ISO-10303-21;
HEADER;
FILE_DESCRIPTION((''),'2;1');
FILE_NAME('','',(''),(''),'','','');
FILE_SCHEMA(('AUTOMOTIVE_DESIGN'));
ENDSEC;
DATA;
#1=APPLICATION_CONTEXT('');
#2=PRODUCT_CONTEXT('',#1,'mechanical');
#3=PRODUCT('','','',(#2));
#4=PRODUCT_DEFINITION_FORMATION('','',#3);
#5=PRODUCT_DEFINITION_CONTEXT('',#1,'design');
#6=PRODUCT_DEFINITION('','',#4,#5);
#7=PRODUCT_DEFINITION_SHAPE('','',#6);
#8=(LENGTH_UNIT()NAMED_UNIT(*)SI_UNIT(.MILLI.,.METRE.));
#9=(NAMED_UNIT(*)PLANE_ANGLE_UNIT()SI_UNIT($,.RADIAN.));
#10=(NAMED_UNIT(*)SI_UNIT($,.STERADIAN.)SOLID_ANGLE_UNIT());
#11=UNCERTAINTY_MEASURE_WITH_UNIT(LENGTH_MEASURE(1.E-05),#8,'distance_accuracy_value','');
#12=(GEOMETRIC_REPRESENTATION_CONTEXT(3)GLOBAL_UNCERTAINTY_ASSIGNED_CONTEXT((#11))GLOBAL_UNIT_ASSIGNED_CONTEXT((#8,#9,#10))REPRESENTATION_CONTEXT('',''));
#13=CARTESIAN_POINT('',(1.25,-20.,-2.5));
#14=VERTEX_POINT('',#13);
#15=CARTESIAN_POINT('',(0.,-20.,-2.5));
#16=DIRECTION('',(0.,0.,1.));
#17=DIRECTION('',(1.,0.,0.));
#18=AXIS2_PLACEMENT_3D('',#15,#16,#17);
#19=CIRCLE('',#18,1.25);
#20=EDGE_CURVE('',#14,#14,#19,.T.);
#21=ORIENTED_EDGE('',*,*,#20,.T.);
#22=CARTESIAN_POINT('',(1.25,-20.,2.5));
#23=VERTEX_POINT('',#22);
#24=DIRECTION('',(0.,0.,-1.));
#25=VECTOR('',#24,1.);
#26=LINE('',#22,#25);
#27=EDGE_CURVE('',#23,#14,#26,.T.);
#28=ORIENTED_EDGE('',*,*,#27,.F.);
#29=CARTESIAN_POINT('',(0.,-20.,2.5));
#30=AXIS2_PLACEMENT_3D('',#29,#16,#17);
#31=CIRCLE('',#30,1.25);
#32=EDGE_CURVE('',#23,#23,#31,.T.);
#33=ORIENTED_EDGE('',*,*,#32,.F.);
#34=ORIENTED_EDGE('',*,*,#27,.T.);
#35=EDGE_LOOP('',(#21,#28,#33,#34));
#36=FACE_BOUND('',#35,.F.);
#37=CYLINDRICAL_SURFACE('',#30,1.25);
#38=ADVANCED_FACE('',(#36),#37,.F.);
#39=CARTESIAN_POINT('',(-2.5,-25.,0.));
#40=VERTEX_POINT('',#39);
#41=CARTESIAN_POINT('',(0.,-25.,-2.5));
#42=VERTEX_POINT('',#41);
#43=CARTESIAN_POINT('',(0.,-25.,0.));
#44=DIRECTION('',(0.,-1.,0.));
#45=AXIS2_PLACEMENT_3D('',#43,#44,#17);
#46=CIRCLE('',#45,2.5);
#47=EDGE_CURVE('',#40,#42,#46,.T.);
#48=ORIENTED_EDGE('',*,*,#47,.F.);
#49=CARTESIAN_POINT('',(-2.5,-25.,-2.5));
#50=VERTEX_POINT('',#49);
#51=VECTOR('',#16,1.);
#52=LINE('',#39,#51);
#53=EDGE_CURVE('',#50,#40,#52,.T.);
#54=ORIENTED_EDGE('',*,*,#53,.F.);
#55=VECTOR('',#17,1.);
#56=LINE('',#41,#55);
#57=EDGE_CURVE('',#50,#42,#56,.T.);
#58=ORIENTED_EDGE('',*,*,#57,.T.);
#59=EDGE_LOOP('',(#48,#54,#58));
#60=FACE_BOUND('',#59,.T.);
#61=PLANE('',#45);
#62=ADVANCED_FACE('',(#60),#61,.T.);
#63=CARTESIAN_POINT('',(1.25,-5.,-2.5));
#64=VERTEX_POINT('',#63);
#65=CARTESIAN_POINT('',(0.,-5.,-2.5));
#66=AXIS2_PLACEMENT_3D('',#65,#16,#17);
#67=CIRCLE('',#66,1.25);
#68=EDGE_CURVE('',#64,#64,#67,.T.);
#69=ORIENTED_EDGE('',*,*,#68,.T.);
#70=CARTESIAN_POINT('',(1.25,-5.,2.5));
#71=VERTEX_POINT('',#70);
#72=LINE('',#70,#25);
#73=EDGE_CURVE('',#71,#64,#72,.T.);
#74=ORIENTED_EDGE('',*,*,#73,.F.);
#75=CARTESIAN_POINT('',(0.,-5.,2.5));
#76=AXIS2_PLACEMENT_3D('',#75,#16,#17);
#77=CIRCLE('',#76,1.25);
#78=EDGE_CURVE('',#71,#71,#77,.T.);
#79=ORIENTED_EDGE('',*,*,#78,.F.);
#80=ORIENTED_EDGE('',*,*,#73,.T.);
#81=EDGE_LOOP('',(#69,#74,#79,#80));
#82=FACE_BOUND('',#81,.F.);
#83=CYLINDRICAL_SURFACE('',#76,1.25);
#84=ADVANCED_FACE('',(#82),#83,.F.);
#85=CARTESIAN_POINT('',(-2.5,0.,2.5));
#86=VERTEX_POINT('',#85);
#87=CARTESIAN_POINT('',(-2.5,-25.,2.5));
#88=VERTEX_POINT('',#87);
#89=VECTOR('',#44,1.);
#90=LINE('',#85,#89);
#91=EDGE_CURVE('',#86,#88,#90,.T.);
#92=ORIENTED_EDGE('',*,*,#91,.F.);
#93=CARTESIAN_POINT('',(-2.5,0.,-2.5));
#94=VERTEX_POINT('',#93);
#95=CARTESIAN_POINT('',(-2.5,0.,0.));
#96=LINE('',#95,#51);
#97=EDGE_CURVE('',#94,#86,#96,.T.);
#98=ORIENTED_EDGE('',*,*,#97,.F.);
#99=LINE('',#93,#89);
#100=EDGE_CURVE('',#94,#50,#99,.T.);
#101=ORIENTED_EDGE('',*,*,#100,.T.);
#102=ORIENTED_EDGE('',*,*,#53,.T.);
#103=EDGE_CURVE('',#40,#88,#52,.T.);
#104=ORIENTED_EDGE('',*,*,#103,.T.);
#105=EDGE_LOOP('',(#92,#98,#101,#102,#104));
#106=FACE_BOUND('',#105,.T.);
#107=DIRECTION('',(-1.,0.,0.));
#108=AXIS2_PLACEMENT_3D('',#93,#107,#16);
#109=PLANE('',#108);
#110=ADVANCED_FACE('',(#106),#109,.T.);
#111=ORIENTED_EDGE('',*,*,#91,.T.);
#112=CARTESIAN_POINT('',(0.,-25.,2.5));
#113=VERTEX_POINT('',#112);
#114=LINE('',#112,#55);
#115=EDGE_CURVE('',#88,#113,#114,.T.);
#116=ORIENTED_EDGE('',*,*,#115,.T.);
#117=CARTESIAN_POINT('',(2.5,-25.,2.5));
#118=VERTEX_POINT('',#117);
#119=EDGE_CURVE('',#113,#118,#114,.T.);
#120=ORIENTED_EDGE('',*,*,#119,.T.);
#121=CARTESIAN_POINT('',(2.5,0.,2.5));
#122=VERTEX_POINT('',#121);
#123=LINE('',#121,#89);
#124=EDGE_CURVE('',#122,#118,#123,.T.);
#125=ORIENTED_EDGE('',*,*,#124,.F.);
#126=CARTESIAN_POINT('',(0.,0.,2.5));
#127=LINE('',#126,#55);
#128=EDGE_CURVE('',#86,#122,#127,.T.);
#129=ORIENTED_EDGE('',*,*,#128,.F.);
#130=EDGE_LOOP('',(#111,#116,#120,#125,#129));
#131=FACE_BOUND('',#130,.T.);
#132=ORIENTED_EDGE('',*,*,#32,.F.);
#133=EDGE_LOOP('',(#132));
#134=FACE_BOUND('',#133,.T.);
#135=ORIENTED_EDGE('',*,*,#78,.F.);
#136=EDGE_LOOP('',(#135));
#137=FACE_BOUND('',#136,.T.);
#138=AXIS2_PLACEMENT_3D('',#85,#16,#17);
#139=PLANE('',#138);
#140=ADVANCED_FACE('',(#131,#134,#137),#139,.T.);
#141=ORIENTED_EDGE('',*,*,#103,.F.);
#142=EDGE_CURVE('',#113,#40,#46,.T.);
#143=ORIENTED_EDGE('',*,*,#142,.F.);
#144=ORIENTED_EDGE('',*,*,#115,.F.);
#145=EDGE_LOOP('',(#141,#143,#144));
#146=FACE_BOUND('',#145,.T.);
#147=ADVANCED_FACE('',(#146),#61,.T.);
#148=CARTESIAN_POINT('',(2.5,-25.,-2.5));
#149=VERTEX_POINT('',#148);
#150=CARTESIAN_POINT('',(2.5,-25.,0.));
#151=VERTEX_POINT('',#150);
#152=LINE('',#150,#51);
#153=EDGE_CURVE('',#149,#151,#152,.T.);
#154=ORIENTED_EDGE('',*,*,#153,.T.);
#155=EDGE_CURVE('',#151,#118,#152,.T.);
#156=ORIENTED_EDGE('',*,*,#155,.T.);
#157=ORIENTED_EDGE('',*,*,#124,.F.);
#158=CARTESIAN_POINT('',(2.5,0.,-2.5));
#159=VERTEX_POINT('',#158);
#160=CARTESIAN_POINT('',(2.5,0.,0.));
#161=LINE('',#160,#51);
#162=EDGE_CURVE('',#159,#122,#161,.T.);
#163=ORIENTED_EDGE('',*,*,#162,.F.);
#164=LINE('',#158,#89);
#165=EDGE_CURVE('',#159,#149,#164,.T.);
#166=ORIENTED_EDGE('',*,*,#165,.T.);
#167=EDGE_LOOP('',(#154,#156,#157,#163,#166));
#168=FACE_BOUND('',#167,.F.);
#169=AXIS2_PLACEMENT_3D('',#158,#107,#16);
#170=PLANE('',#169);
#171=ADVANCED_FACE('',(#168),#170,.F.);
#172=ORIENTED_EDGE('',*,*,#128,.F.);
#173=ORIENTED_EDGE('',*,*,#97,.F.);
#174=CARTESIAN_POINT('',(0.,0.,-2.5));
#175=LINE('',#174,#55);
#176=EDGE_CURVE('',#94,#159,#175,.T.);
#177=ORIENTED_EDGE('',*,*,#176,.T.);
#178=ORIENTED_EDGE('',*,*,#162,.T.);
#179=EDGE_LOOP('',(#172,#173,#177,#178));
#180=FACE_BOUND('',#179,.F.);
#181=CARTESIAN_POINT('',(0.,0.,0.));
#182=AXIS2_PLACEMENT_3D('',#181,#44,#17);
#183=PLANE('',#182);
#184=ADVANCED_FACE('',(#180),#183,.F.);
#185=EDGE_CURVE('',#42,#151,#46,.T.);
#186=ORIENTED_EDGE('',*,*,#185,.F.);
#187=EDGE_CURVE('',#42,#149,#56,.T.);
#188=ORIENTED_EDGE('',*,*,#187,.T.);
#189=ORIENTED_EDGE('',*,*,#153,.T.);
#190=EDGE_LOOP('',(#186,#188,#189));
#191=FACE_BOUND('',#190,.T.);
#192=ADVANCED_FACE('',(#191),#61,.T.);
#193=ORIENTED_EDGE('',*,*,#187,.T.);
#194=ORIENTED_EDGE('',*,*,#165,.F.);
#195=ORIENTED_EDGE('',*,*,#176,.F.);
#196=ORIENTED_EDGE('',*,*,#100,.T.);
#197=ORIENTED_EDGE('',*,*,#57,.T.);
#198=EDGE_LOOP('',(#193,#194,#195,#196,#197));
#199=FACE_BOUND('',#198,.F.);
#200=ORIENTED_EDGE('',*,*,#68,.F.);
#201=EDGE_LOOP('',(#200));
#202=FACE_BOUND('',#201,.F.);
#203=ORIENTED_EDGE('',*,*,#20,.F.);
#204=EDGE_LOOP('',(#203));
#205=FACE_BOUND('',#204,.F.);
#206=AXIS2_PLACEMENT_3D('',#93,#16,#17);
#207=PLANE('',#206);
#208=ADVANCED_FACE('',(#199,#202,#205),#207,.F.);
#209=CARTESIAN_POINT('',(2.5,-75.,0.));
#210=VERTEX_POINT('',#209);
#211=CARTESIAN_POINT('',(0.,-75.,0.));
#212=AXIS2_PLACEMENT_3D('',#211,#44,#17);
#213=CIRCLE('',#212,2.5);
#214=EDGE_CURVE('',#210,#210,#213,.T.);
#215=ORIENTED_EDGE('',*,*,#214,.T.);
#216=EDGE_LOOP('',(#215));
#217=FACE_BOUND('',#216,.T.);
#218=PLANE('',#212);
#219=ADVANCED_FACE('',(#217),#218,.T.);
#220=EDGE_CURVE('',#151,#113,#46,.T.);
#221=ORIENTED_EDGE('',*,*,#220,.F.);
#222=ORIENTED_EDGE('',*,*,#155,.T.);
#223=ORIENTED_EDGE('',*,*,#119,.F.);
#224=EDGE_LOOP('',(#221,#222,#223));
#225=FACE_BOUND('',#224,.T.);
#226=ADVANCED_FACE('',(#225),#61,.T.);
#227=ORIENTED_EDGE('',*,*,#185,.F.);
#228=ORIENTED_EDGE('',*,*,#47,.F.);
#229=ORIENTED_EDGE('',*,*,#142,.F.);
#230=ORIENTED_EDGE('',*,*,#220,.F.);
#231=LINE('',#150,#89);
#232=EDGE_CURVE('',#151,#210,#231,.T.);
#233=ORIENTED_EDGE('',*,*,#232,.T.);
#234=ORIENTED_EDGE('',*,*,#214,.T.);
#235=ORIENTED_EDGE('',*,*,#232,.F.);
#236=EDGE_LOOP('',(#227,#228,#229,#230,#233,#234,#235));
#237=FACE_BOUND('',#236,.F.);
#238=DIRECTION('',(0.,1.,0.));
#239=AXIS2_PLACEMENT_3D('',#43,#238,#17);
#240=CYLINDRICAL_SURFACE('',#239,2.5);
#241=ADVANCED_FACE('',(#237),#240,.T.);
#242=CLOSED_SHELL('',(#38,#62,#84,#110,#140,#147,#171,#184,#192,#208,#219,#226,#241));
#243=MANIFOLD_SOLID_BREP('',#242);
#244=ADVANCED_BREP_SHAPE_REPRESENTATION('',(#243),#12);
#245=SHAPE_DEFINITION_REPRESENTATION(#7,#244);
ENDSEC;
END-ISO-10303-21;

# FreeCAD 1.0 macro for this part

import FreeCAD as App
import Part
import Sketcher
from FreeCAD import Vector


def add_polygon(sketch, points):
    """Adds a closed chain of lines whose ends are joined by coincident constraints."""
    first, n = sketch.GeometryCount, len(points)
    for a, b in zip(points, points[1:] + points[:1]):
        sketch.addGeometry(Part.LineSegment(App.Vector(*a, 0), App.Vector(*b, 0)), False)
    for i in range(n):
        sketch.addConstraint(Sketcher.Constraint("Coincident", first + i, 2, first + (i + 1) % n, 1))

doc = App.newDocument("Part")
body = doc.addObject("PartDesign::Body", "Body")

sketch1 = body.newObject("Sketcher::SketchObject", "Sketch")
sketch1.AttachmentSupport = (doc.getObject("XZ_Plane"), [""])
sketch1.MapMode = "FlatFace"
add_polygon(sketch1, [(-2, 2), (-2, -2), (2, -2), (2, 2)])
sketch1.addConstraint([
    Sketcher.Constraint("Vertical", 0),
    Sketcher.Constraint("Horizontal", 1),
    Sketcher.Constraint("Vertical", 2),
    Sketcher.Constraint("Horizontal", 3),
    Sketcher.Constraint("Symmetric", 0, 2, 2, 2, -1, 1),
    Sketcher.Constraint("Equal", 3, 0),
    Sketcher.Constraint("DistanceX", 1, 1, 1, 2, 5.0),
])
pad1 = body.newObject("PartDesign::Pad", "Pad")
pad1.Profile = sketch1
pad1.Length = 25

sketch2 = body.newObject("Sketcher::SketchObject", "Sketch001")
sketch2.AttachmentSupport = (doc.getObject("XZ_Plane"), [""])
sketch2.MapMode = "FlatFace"
sketch2.AttachmentOffset = App.Placement(Vector(0, 0, 25), App.Rotation())
sketch2.addGeometry(Part.Circle(Vector(0, 0, 0), Vector(0, 0, 1), 2.5), False)
sketch2.addConstraint([
    Sketcher.Constraint("Coincident", 0, 3, -1, 1),
    Sketcher.Constraint("Diameter", 0, 5.0),
])
pad2 = body.newObject("PartDesign::Pad", "Pad001")
pad2.Profile = sketch2
pad2.Length = 50

sketch3 = body.newObject("Sketcher::SketchObject", "Sketch002")
sketch3.AttachmentSupport = (doc.getObject("XY_Plane"), [""])
sketch3.MapMode = "FlatFace"
sketch3.AttachmentOffset = App.Placement(Vector(0, 0, 2.5), App.Rotation())
sketch3.addGeometry([
    Part.Circle(Vector(0, -5, 0), Vector(0, 0, 1), 1.2),
    Part.Circle(Vector(0, -20, 0), Vector(0, 0, 1), 1.2),
], False)
sketch3.addConstraint([
    Sketcher.Constraint("Equal", 0, 1),
    Sketcher.Constraint("PointOnObject", 0, 3, -2),
    Sketcher.Constraint("PointOnObject", 1, 3, -2),
    Sketcher.Constraint("Diameter", 0, 2.5),
    Sketcher.Constraint("DistanceY", 0, 3, -1, 1, 5.0),
    Sketcher.Constraint("DistanceY", 1, 3, -1, 1, 20.0),
])
pocket1 = body.newObject("PartDesign::Pocket", "Pocket")
pocket1.Profile = sketch3
pocket1.Length = 25

doc.recompute()
